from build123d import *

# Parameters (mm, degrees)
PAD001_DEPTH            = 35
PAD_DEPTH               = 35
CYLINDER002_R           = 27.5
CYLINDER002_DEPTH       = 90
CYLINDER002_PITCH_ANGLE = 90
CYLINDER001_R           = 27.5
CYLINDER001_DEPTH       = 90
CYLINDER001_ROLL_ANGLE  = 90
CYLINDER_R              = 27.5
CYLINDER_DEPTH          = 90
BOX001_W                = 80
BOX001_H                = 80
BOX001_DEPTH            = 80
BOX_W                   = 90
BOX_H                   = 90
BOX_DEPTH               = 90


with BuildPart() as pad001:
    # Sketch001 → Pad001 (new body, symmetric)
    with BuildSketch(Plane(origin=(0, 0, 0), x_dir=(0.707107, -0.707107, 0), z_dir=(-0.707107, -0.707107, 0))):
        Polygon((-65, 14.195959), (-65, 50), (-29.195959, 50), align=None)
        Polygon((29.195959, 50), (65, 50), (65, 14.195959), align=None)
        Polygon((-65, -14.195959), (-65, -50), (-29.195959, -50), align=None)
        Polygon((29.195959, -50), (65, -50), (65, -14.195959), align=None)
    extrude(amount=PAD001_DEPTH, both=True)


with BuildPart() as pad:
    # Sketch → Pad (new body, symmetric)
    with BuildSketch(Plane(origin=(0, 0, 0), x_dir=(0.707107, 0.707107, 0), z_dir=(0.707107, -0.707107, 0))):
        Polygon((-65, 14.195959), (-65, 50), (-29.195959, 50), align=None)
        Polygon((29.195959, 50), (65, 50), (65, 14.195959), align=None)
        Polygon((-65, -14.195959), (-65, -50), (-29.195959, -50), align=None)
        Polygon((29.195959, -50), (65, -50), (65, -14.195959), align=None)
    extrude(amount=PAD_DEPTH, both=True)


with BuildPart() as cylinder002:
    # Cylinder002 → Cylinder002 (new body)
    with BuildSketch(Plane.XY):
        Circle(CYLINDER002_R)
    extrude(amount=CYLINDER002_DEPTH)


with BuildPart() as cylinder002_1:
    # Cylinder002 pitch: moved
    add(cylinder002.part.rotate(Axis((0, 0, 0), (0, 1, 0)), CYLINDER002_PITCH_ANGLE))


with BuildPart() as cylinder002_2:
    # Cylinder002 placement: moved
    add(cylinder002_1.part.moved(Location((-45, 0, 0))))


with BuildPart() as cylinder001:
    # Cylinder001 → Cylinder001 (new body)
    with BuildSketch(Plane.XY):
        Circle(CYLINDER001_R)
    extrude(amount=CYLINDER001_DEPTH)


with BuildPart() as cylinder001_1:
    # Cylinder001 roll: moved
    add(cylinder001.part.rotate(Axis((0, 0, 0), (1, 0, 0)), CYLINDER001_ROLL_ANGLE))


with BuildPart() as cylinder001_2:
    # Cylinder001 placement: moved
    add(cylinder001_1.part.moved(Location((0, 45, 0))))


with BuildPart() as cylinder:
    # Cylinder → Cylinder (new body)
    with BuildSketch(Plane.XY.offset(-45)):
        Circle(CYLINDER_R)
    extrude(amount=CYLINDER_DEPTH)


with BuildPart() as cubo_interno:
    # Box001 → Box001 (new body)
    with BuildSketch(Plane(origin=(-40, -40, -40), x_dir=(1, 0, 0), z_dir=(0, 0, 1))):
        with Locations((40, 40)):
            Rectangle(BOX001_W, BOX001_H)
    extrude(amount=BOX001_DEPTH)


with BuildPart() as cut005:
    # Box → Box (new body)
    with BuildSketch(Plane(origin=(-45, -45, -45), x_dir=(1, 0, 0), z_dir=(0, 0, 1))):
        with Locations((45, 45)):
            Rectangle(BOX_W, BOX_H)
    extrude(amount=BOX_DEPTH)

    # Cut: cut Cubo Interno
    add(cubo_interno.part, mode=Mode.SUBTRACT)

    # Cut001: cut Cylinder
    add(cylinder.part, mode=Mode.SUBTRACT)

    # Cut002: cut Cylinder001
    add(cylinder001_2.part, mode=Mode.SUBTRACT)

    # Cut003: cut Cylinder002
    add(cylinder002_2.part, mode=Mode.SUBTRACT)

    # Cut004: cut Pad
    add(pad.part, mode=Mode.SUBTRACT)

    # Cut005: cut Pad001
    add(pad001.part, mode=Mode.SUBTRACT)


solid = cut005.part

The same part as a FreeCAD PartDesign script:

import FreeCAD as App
import Part
import Sketcher

V = App.Vector

doc = App.newDocument("Part")
params = doc.addObject("Spreadsheet::Sheet", "Params")
for row, (alias, value) in enumerate([
    ("pad1_length", "70 mm"),
    ("pad2_length", "70 mm"),
    ("sketch3_diameter", "55 mm"),
    ("pad3_length", "90 mm"),
    ("sketch4_diameter", "55 mm"),
    ("pad4_length", "90 mm"),
    ("sketch5_diameter", "55 mm"),
    ("pad5_length", "90 mm"),
    ("sketch6_width", "80 mm"),
    ("pad6_length", "80 mm"),
    ("sketch7_width", "90 mm"),
    ("pad7_length", "90 mm"),
], start=1):
    params.set(f"A{row}", alias)
    params.set(f"B{row}", "=" + value)
    params.setAlias(f"B{row}", alias)

body = doc.addObject("PartDesign::Body", "Body")
body.AllowCompound = True

# Sketch on an angled plane
sketch1 = body.newObject("Sketcher::SketchObject", "Sketch")
sketch1.Placement = App.Placement(V(0, 0, 0), App.Rotation(V(0.707106781, -0.707106781, 0), V(0, 0, 0.999999999), V(-0.707106781, -0.707106781, 0), "ZXY"))
sketch1.addGeometry(Part.LineSegment(V(-65, 50, 0), V(-65, 14, 0)), False)
sketch1.addGeometry(Part.LineSegment(V(-65, 14, 0), V(-29, 50, 0)), False)
sketch1.addGeometry(Part.LineSegment(V(-29, 50, 0), V(-65, 50, 0)), False)
sketch1.addGeometry(Part.LineSegment(V(65, 50, 0), V(29, 50, 0)), False)
sketch1.addGeometry(Part.LineSegment(V(29, 50, 0), V(65, 14, 0)), False)
sketch1.addGeometry(Part.LineSegment(V(65, 14, 0), V(65, 50, 0)), False)
sketch1.addGeometry(Part.LineSegment(V(-65, -14, 0), V(-65, -50, 0)), False)
sketch1.addGeometry(Part.LineSegment(V(-65, -50, 0), V(-29, -50, 0)), False)
sketch1.addGeometry(Part.LineSegment(V(-29, -50, 0), V(-65, -14, 0)), False)
sketch1.addGeometry(Part.LineSegment(V(29, -50, 0), V(65, -50, 0)), False)
sketch1.addGeometry(Part.LineSegment(V(65, -50, 0), V(65, -14, 0)), False)
sketch1.addGeometry(Part.LineSegment(V(65, -14, 0), V(29, -50, 0)), False)
sketch1.addConstraint(Sketcher.Constraint("Coincident", 0, 2, 1, 1))
sketch1.addConstraint(Sketcher.Constraint("Coincident", 1, 2, 2, 1))
sketch1.addConstraint(Sketcher.Constraint("Coincident", 2, 2, 0, 1))
sketch1.addConstraint(Sketcher.Constraint("Coincident", 3, 2, 4, 1))
sketch1.addConstraint(Sketcher.Constraint("Coincident", 4, 2, 5, 1))
sketch1.addConstraint(Sketcher.Constraint("Coincident", 5, 2, 3, 1))
sketch1.addConstraint(Sketcher.Constraint("Coincident", 6, 2, 7, 1))
sketch1.addConstraint(Sketcher.Constraint("Coincident", 7, 2, 8, 1))
sketch1.addConstraint(Sketcher.Constraint("Coincident", 8, 2, 6, 1))
sketch1.addConstraint(Sketcher.Constraint("Coincident", 9, 2, 10, 1))
sketch1.addConstraint(Sketcher.Constraint("Coincident", 10, 2, 11, 1))
sketch1.addConstraint(Sketcher.Constraint("Coincident", 11, 2, 9, 1))
sketch1.addConstraint(Sketcher.Constraint("Vertical", 0))
sketch1.addConstraint(Sketcher.Constraint("Horizontal", 2))
sketch1.addConstraint(Sketcher.Constraint("Horizontal", 3))
sketch1.addConstraint(Sketcher.Constraint("Vertical", 5))
sketch1.addConstraint(Sketcher.Constraint("Vertical", 6))
sketch1.addConstraint(Sketcher.Constraint("Horizontal", 7))
sketch1.addConstraint(Sketcher.Constraint("Horizontal", 9))
sketch1.addConstraint(Sketcher.Constraint("Vertical", 10))
sketch1.addConstraint(Sketcher.Constraint("Symmetric", 5, 2, 6, 2, -1, 1))
sketch1.addConstraint(Sketcher.Constraint("Symmetric", 2, 2, 9, 2, -1, 1))
sketch1.addConstraint(Sketcher.Constraint("Symmetric", 1, 2, 3, 2, -2))
sketch1.addConstraint(Sketcher.Constraint("Symmetric", 0, 2, 4, 2, -2))
sketch1.addConstraint(Sketcher.Constraint("Perpendicular", 1, 4))
sketch1.addConstraint(Sketcher.Constraint("Parallel", 4, 8))
sketch1.addConstraint(Sketcher.Constraint("Perpendicular", 8, 11))
sketch1.addConstraint(Sketcher.Constraint("Horizontal", 8, 2, 10, 2))
sketch1.addConstraint(Sketcher.Constraint("Vertical", 1, 2, 7, 2))
sketch1.addConstraint(Sketcher.Constraint("DistanceX", 0, 2, -1, 1, 65.0))
sketch1.addConstraint(Sketcher.Constraint("DistanceY", -1, 1, 1, 2, 50.0))
sketch1.addConstraint(Sketcher.Constraint("DistanceX", 2, 2, 2, 1, 35.804041))
pad1 = body.newObject("PartDesign::Pad", "Pad")
pad1.Profile = sketch1
pad1.setExpression("Length", "Params.pad1_length")
pad1.Midplane = True
body2 = doc.addObject("PartDesign::Body", "Body001")
body2.AllowCompound = True

# Sketch on an angled plane
sketch2 = body2.newObject("Sketcher::SketchObject", "Sketch001")
sketch2.Placement = App.Placement(V(0, 0, 0), App.Rotation(V(0.707106781, 0.707106781, 0), V(0, 0, 0.999999999), V(0.707106781, -0.707106781, 0), "ZXY"))
sketch2.addGeometry(Part.LineSegment(V(-65, 50, 0), V(-65, 14, 0)), False)
sketch2.addGeometry(Part.LineSegment(V(-65, 14, 0), V(-29, 50, 0)), False)
sketch2.addGeometry(Part.LineSegment(V(-29, 50, 0), V(-65, 50, 0)), False)
sketch2.addGeometry(Part.LineSegment(V(65, 50, 0), V(29, 50, 0)), False)
sketch2.addGeometry(Part.LineSegment(V(29, 50, 0), V(65, 14, 0)), False)
sketch2.addGeometry(Part.LineSegment(V(65, 14, 0), V(65, 50, 0)), False)
sketch2.addGeometry(Part.LineSegment(V(-65, -14, 0), V(-65, -50, 0)), False)
sketch2.addGeometry(Part.LineSegment(V(-65, -50, 0), V(-29, -50, 0)), False)
sketch2.addGeometry(Part.LineSegment(V(-29, -50, 0), V(-65, -14, 0)), False)
sketch2.addGeometry(Part.LineSegment(V(29, -50, 0), V(65, -50, 0)), False)
sketch2.addGeometry(Part.LineSegment(V(65, -50, 0), V(65, -14, 0)), False)
sketch2.addGeometry(Part.LineSegment(V(65, -14, 0), V(29, -50, 0)), False)
sketch2.addConstraint(Sketcher.Constraint("Coincident", 0, 2, 1, 1))
sketch2.addConstraint(Sketcher.Constraint("Coincident", 1, 2, 2, 1))
sketch2.addConstraint(Sketcher.Constraint("Coincident", 2, 2, 0, 1))
sketch2.addConstraint(Sketcher.Constraint("Coincident", 3, 2, 4, 1))
sketch2.addConstraint(Sketcher.Constraint("Coincident", 4, 2, 5, 1))
sketch2.addConstraint(Sketcher.Constraint("Coincident", 5, 2, 3, 1))
sketch2.addConstraint(Sketcher.Constraint("Coincident", 6, 2, 7, 1))
sketch2.addConstraint(Sketcher.Constraint("Coincident", 7, 2, 8, 1))
sketch2.addConstraint(Sketcher.Constraint("Coincident", 8, 2, 6, 1))
sketch2.addConstraint(Sketcher.Constraint("Coincident", 9, 2, 10, 1))
sketch2.addConstraint(Sketcher.Constraint("Coincident", 10, 2, 11, 1))
sketch2.addConstraint(Sketcher.Constraint("Coincident", 11, 2, 9, 1))
sketch2.addConstraint(Sketcher.Constraint("Vertical", 0))
sketch2.addConstraint(Sketcher.Constraint("Horizontal", 2))
sketch2.addConstraint(Sketcher.Constraint("Horizontal", 3))
sketch2.addConstraint(Sketcher.Constraint("Vertical", 5))
sketch2.addConstraint(Sketcher.Constraint("Vertical", 6))
sketch2.addConstraint(Sketcher.Constraint("Horizontal", 7))
sketch2.addConstraint(Sketcher.Constraint("Horizontal", 9))
sketch2.addConstraint(Sketcher.Constraint("Vertical", 10))
sketch2.addConstraint(Sketcher.Constraint("Symmetric", 5, 2, 6, 2, -1, 1))
sketch2.addConstraint(Sketcher.Constraint("Symmetric", 2, 2, 9, 2, -1, 1))
sketch2.addConstraint(Sketcher.Constraint("Symmetric", 1, 2, 3, 2, -2))
sketch2.addConstraint(Sketcher.Constraint("Symmetric", 0, 2, 4, 2, -2))
sketch2.addConstraint(Sketcher.Constraint("Perpendicular", 1, 4))
sketch2.addConstraint(Sketcher.Constraint("Parallel", 4, 8))
sketch2.addConstraint(Sketcher.Constraint("Perpendicular", 8, 11))
sketch2.addConstraint(Sketcher.Constraint("Horizontal", 8, 2, 10, 2))
sketch2.addConstraint(Sketcher.Constraint("Vertical", 1, 2, 7, 2))
sketch2.addConstraint(Sketcher.Constraint("DistanceX", 0, 2, -1, 1, 65.0))
sketch2.addConstraint(Sketcher.Constraint("DistanceY", -1, 1, 1, 2, 50.0))
sketch2.addConstraint(Sketcher.Constraint("DistanceX", 2, 2, 2, 1, 35.804041))
pad2 = body2.newObject("PartDesign::Pad", "Pad001")
pad2.Profile = sketch2
pad2.setExpression("Length", "Params.pad2_length")
pad2.Midplane = True
body3 = doc.addObject("PartDesign::Body", "Body002")

# Sketch on XY plane
sketch3 = body3.newObject("Sketcher::SketchObject", "Sketch002")
sketch3.AttachmentSupport = (doc.getObject("XY_Plane002"), [""])
sketch3.MapMode = "FlatFace"
sketch3.addGeometry(Part.Circle(V(0, 0, 0), V(0, 0, 1), 28), False)
sketch3.addConstraint(Sketcher.Constraint("Coincident", 0, 3, -1, 1))
sketch3.addConstraint(Sketcher.Constraint("Diameter", 0, 55.0))
sketch3.setExpression("Constraints[1]", "Params.sketch3_diameter")
pad3 = body3.newObject("PartDesign::Pad", "Pad002")
pad3.Profile = sketch3
pad3.setExpression("Length", "Params.pad3_length")
body4 = doc.addObject("PartDesign::Body", "Body003")
doc.recompute()

body3.Placement = App.Placement(V(0, 0, 0), App.Rotation(V(0, 1, 0), 90))
boolean = body4.newObject("PartDesign::Boolean", "Boolean")
boolean.Type = "Fuse"
boolean.addObjects([body3])
body5 = doc.addObject("PartDesign::Body", "Body004")
doc.recompute()

body4.Placement = App.Placement(V(-45, 0, 0), App.Rotation(V(0, 0, 1), 0))
boolean2 = body5.newObject("PartDesign::Boolean", "Boolean001")
boolean2.Type = "Fuse"
boolean2.addObjects([body4])
body6 = doc.addObject("PartDesign::Body", "Body005")

# Sketch on XY plane
sketch4 = body6.newObject("Sketcher::SketchObject", "Sketch003")
sketch4.AttachmentSupport = (doc.getObject("XY_Plane005"), [""])
sketch4.MapMode = "FlatFace"
sketch4.addGeometry(Part.Circle(V(0, 0, 0), V(0, 0, 1), 28), False)
sketch4.addConstraint(Sketcher.Constraint("Coincident", 0, 3, -1, 1))
sketch4.addConstraint(Sketcher.Constraint("Diameter", 0, 55.0))
sketch4.setExpression("Constraints[1]", "Params.sketch4_diameter")
pad4 = body6.newObject("PartDesign::Pad", "Pad003")
pad4.Profile = sketch4
pad4.setExpression("Length", "Params.pad4_length")
body7 = doc.addObject("PartDesign::Body", "Body006")
doc.recompute()

body6.Placement = App.Placement(V(0, 0, 0), App.Rotation(V(1, 0, 0), 90))
boolean3 = body7.newObject("PartDesign::Boolean", "Boolean002")
boolean3.Type = "Fuse"
boolean3.addObjects([body6])
body8 = doc.addObject("PartDesign::Body", "Body007")
doc.recompute()

body7.Placement = App.Placement(V(0, 45, 0), App.Rotation(V(0, 0, 1), 0))
boolean4 = body8.newObject("PartDesign::Boolean", "Boolean003")
boolean4.Type = "Fuse"
boolean4.addObjects([body7])
body9 = doc.addObject("PartDesign::Body", "Body008")

# Sketch on XY plane
sketch5 = body9.newObject("Sketcher::SketchObject", "Sketch004")
sketch5.AttachmentSupport = (doc.getObject("XY_Plane008"), [""])
sketch5.MapMode = "FlatFace"
sketch5.AttachmentOffset = App.Placement(V(0, 0, -45), App.Rotation())
sketch5.addGeometry(Part.Circle(V(0, 0, 0), V(0, 0, 1), 28), False)
sketch5.addConstraint(Sketcher.Constraint("Coincident", 0, 3, -1, 1))
sketch5.addConstraint(Sketcher.Constraint("Diameter", 0, 55.0))
sketch5.setExpression("Constraints[1]", "Params.sketch5_diameter")
pad5 = body9.newObject("PartDesign::Pad", "Pad004")
pad5.Profile = sketch5
pad5.setExpression("Length", "Params.pad5_length")
body10 = doc.addObject("PartDesign::Body", "Body009")

# Sketch on XY plane
sketch6 = body10.newObject("Sketcher::SketchObject", "Sketch005")
sketch6.AttachmentSupport = (doc.getObject("XY_Plane009"), [""])
sketch6.MapMode = "FlatFace"
sketch6.AttachmentOffset = App.Placement(V(0, 0, -40), App.Rotation())
sketch6.addGeometry(Part.LineSegment(V(-40, 40, 0), V(-40, -40, 0)), False)
sketch6.addGeometry(Part.LineSegment(V(-40, -40, 0), V(40, -40, 0)), False)
sketch6.addGeometry(Part.LineSegment(V(40, -40, 0), V(40, 40, 0)), False)
sketch6.addGeometry(Part.LineSegment(V(40, 40, 0), V(-40, 40, 0)), False)
sketch6.addConstraint(Sketcher.Constraint("Coincident", 0, 2, 1, 1))
sketch6.addConstraint(Sketcher.Constraint("Coincident", 1, 2, 2, 1))
sketch6.addConstraint(Sketcher.Constraint("Coincident", 2, 2, 3, 1))
sketch6.addConstraint(Sketcher.Constraint("Coincident", 3, 2, 0, 1))
sketch6.addConstraint(Sketcher.Constraint("Vertical", 0))
sketch6.addConstraint(Sketcher.Constraint("Horizontal", 1))
sketch6.addConstraint(Sketcher.Constraint("Vertical", 2))
sketch6.addConstraint(Sketcher.Constraint("Horizontal", 3))
sketch6.addConstraint(Sketcher.Constraint("Symmetric", 0, 2, 2, 2, -1, 1))
sketch6.addConstraint(Sketcher.Constraint("Equal", 3, 0))
sketch6.addConstraint(Sketcher.Constraint("DistanceX", 1, 1, 1, 2, 80.0))
sketch6.setExpression("Constraints[10]", "Params.sketch6_width")
pad6 = body10.newObject("PartDesign::Pad", "Pad005")
pad6.Profile = sketch6
pad6.setExpression("Length", "Params.pad6_length")
body11 = doc.addObject("PartDesign::Body", "Body010")

# Sketch on XY plane
sketch7 = body11.newObject("Sketcher::SketchObject", "Sketch006")
sketch7.AttachmentSupport = (doc.getObject("XY_Plane010"), [""])
sketch7.MapMode = "FlatFace"
sketch7.AttachmentOffset = App.Placement(V(0, 0, -45), App.Rotation())
sketch7.addGeometry(Part.LineSegment(V(-45, 45, 0), V(-45, -45, 0)), False)
sketch7.addGeometry(Part.LineSegment(V(-45, -45, 0), V(45, -45, 0)), False)
sketch7.addGeometry(Part.LineSegment(V(45, -45, 0), V(45, 45, 0)), False)
sketch7.addGeometry(Part.LineSegment(V(45, 45, 0), V(-45, 45, 0)), False)
sketch7.addConstraint(Sketcher.Constraint("Coincident", 0, 2, 1, 1))
sketch7.addConstraint(Sketcher.Constraint("Coincident", 1, 2, 2, 1))
sketch7.addConstraint(Sketcher.Constraint("Coincident", 2, 2, 3, 1))
sketch7.addConstraint(Sketcher.Constraint("Coincident", 3, 2, 0, 1))
sketch7.addConstraint(Sketcher.Constraint("Vertical", 0))
sketch7.addConstraint(Sketcher.Constraint("Horizontal", 1))
sketch7.addConstraint(Sketcher.Constraint("Vertical", 2))
sketch7.addConstraint(Sketcher.Constraint("Horizontal", 3))
sketch7.addConstraint(Sketcher.Constraint("Symmetric", 0, 2, 2, 2, -1, 1))
sketch7.addConstraint(Sketcher.Constraint("Equal", 3, 0))
sketch7.addConstraint(Sketcher.Constraint("DistanceX", 1, 1, 1, 2, 90.0))
sketch7.setExpression("Constraints[10]", "Params.sketch7_width")
pad7 = body11.newObject("PartDesign::Pad", "Pad006")
pad7.Profile = sketch7
pad7.setExpression("Length", "Params.pad7_length")
doc.recompute()

boolean5 = body11.newObject("PartDesign::Boolean", "Boolean004")
boolean5.Type = "Cut"
boolean5.addObjects([body10])
doc.recompute()

boolean6 = body11.newObject("PartDesign::Boolean", "Boolean005")
boolean6.Type = "Cut"
boolean6.addObjects([body9])
doc.recompute()

boolean7 = body11.newObject("PartDesign::Boolean", "Boolean006")
boolean7.Type = "Cut"
boolean7.addObjects([body8])
doc.recompute()

boolean8 = body11.newObject("PartDesign::Boolean", "Boolean007")
boolean8.Type = "Cut"
boolean8.addObjects([body5])
doc.recompute()

boolean9 = body11.newObject("PartDesign::Boolean", "Boolean008")
boolean9.Type = "Cut"
boolean9.addObjects([body2])
doc.recompute()

boolean10 = body11.newObject("PartDesign::Boolean", "Boolean009")
boolean10.Type = "Cut"
boolean10.addObjects([body])

doc.recompute()
